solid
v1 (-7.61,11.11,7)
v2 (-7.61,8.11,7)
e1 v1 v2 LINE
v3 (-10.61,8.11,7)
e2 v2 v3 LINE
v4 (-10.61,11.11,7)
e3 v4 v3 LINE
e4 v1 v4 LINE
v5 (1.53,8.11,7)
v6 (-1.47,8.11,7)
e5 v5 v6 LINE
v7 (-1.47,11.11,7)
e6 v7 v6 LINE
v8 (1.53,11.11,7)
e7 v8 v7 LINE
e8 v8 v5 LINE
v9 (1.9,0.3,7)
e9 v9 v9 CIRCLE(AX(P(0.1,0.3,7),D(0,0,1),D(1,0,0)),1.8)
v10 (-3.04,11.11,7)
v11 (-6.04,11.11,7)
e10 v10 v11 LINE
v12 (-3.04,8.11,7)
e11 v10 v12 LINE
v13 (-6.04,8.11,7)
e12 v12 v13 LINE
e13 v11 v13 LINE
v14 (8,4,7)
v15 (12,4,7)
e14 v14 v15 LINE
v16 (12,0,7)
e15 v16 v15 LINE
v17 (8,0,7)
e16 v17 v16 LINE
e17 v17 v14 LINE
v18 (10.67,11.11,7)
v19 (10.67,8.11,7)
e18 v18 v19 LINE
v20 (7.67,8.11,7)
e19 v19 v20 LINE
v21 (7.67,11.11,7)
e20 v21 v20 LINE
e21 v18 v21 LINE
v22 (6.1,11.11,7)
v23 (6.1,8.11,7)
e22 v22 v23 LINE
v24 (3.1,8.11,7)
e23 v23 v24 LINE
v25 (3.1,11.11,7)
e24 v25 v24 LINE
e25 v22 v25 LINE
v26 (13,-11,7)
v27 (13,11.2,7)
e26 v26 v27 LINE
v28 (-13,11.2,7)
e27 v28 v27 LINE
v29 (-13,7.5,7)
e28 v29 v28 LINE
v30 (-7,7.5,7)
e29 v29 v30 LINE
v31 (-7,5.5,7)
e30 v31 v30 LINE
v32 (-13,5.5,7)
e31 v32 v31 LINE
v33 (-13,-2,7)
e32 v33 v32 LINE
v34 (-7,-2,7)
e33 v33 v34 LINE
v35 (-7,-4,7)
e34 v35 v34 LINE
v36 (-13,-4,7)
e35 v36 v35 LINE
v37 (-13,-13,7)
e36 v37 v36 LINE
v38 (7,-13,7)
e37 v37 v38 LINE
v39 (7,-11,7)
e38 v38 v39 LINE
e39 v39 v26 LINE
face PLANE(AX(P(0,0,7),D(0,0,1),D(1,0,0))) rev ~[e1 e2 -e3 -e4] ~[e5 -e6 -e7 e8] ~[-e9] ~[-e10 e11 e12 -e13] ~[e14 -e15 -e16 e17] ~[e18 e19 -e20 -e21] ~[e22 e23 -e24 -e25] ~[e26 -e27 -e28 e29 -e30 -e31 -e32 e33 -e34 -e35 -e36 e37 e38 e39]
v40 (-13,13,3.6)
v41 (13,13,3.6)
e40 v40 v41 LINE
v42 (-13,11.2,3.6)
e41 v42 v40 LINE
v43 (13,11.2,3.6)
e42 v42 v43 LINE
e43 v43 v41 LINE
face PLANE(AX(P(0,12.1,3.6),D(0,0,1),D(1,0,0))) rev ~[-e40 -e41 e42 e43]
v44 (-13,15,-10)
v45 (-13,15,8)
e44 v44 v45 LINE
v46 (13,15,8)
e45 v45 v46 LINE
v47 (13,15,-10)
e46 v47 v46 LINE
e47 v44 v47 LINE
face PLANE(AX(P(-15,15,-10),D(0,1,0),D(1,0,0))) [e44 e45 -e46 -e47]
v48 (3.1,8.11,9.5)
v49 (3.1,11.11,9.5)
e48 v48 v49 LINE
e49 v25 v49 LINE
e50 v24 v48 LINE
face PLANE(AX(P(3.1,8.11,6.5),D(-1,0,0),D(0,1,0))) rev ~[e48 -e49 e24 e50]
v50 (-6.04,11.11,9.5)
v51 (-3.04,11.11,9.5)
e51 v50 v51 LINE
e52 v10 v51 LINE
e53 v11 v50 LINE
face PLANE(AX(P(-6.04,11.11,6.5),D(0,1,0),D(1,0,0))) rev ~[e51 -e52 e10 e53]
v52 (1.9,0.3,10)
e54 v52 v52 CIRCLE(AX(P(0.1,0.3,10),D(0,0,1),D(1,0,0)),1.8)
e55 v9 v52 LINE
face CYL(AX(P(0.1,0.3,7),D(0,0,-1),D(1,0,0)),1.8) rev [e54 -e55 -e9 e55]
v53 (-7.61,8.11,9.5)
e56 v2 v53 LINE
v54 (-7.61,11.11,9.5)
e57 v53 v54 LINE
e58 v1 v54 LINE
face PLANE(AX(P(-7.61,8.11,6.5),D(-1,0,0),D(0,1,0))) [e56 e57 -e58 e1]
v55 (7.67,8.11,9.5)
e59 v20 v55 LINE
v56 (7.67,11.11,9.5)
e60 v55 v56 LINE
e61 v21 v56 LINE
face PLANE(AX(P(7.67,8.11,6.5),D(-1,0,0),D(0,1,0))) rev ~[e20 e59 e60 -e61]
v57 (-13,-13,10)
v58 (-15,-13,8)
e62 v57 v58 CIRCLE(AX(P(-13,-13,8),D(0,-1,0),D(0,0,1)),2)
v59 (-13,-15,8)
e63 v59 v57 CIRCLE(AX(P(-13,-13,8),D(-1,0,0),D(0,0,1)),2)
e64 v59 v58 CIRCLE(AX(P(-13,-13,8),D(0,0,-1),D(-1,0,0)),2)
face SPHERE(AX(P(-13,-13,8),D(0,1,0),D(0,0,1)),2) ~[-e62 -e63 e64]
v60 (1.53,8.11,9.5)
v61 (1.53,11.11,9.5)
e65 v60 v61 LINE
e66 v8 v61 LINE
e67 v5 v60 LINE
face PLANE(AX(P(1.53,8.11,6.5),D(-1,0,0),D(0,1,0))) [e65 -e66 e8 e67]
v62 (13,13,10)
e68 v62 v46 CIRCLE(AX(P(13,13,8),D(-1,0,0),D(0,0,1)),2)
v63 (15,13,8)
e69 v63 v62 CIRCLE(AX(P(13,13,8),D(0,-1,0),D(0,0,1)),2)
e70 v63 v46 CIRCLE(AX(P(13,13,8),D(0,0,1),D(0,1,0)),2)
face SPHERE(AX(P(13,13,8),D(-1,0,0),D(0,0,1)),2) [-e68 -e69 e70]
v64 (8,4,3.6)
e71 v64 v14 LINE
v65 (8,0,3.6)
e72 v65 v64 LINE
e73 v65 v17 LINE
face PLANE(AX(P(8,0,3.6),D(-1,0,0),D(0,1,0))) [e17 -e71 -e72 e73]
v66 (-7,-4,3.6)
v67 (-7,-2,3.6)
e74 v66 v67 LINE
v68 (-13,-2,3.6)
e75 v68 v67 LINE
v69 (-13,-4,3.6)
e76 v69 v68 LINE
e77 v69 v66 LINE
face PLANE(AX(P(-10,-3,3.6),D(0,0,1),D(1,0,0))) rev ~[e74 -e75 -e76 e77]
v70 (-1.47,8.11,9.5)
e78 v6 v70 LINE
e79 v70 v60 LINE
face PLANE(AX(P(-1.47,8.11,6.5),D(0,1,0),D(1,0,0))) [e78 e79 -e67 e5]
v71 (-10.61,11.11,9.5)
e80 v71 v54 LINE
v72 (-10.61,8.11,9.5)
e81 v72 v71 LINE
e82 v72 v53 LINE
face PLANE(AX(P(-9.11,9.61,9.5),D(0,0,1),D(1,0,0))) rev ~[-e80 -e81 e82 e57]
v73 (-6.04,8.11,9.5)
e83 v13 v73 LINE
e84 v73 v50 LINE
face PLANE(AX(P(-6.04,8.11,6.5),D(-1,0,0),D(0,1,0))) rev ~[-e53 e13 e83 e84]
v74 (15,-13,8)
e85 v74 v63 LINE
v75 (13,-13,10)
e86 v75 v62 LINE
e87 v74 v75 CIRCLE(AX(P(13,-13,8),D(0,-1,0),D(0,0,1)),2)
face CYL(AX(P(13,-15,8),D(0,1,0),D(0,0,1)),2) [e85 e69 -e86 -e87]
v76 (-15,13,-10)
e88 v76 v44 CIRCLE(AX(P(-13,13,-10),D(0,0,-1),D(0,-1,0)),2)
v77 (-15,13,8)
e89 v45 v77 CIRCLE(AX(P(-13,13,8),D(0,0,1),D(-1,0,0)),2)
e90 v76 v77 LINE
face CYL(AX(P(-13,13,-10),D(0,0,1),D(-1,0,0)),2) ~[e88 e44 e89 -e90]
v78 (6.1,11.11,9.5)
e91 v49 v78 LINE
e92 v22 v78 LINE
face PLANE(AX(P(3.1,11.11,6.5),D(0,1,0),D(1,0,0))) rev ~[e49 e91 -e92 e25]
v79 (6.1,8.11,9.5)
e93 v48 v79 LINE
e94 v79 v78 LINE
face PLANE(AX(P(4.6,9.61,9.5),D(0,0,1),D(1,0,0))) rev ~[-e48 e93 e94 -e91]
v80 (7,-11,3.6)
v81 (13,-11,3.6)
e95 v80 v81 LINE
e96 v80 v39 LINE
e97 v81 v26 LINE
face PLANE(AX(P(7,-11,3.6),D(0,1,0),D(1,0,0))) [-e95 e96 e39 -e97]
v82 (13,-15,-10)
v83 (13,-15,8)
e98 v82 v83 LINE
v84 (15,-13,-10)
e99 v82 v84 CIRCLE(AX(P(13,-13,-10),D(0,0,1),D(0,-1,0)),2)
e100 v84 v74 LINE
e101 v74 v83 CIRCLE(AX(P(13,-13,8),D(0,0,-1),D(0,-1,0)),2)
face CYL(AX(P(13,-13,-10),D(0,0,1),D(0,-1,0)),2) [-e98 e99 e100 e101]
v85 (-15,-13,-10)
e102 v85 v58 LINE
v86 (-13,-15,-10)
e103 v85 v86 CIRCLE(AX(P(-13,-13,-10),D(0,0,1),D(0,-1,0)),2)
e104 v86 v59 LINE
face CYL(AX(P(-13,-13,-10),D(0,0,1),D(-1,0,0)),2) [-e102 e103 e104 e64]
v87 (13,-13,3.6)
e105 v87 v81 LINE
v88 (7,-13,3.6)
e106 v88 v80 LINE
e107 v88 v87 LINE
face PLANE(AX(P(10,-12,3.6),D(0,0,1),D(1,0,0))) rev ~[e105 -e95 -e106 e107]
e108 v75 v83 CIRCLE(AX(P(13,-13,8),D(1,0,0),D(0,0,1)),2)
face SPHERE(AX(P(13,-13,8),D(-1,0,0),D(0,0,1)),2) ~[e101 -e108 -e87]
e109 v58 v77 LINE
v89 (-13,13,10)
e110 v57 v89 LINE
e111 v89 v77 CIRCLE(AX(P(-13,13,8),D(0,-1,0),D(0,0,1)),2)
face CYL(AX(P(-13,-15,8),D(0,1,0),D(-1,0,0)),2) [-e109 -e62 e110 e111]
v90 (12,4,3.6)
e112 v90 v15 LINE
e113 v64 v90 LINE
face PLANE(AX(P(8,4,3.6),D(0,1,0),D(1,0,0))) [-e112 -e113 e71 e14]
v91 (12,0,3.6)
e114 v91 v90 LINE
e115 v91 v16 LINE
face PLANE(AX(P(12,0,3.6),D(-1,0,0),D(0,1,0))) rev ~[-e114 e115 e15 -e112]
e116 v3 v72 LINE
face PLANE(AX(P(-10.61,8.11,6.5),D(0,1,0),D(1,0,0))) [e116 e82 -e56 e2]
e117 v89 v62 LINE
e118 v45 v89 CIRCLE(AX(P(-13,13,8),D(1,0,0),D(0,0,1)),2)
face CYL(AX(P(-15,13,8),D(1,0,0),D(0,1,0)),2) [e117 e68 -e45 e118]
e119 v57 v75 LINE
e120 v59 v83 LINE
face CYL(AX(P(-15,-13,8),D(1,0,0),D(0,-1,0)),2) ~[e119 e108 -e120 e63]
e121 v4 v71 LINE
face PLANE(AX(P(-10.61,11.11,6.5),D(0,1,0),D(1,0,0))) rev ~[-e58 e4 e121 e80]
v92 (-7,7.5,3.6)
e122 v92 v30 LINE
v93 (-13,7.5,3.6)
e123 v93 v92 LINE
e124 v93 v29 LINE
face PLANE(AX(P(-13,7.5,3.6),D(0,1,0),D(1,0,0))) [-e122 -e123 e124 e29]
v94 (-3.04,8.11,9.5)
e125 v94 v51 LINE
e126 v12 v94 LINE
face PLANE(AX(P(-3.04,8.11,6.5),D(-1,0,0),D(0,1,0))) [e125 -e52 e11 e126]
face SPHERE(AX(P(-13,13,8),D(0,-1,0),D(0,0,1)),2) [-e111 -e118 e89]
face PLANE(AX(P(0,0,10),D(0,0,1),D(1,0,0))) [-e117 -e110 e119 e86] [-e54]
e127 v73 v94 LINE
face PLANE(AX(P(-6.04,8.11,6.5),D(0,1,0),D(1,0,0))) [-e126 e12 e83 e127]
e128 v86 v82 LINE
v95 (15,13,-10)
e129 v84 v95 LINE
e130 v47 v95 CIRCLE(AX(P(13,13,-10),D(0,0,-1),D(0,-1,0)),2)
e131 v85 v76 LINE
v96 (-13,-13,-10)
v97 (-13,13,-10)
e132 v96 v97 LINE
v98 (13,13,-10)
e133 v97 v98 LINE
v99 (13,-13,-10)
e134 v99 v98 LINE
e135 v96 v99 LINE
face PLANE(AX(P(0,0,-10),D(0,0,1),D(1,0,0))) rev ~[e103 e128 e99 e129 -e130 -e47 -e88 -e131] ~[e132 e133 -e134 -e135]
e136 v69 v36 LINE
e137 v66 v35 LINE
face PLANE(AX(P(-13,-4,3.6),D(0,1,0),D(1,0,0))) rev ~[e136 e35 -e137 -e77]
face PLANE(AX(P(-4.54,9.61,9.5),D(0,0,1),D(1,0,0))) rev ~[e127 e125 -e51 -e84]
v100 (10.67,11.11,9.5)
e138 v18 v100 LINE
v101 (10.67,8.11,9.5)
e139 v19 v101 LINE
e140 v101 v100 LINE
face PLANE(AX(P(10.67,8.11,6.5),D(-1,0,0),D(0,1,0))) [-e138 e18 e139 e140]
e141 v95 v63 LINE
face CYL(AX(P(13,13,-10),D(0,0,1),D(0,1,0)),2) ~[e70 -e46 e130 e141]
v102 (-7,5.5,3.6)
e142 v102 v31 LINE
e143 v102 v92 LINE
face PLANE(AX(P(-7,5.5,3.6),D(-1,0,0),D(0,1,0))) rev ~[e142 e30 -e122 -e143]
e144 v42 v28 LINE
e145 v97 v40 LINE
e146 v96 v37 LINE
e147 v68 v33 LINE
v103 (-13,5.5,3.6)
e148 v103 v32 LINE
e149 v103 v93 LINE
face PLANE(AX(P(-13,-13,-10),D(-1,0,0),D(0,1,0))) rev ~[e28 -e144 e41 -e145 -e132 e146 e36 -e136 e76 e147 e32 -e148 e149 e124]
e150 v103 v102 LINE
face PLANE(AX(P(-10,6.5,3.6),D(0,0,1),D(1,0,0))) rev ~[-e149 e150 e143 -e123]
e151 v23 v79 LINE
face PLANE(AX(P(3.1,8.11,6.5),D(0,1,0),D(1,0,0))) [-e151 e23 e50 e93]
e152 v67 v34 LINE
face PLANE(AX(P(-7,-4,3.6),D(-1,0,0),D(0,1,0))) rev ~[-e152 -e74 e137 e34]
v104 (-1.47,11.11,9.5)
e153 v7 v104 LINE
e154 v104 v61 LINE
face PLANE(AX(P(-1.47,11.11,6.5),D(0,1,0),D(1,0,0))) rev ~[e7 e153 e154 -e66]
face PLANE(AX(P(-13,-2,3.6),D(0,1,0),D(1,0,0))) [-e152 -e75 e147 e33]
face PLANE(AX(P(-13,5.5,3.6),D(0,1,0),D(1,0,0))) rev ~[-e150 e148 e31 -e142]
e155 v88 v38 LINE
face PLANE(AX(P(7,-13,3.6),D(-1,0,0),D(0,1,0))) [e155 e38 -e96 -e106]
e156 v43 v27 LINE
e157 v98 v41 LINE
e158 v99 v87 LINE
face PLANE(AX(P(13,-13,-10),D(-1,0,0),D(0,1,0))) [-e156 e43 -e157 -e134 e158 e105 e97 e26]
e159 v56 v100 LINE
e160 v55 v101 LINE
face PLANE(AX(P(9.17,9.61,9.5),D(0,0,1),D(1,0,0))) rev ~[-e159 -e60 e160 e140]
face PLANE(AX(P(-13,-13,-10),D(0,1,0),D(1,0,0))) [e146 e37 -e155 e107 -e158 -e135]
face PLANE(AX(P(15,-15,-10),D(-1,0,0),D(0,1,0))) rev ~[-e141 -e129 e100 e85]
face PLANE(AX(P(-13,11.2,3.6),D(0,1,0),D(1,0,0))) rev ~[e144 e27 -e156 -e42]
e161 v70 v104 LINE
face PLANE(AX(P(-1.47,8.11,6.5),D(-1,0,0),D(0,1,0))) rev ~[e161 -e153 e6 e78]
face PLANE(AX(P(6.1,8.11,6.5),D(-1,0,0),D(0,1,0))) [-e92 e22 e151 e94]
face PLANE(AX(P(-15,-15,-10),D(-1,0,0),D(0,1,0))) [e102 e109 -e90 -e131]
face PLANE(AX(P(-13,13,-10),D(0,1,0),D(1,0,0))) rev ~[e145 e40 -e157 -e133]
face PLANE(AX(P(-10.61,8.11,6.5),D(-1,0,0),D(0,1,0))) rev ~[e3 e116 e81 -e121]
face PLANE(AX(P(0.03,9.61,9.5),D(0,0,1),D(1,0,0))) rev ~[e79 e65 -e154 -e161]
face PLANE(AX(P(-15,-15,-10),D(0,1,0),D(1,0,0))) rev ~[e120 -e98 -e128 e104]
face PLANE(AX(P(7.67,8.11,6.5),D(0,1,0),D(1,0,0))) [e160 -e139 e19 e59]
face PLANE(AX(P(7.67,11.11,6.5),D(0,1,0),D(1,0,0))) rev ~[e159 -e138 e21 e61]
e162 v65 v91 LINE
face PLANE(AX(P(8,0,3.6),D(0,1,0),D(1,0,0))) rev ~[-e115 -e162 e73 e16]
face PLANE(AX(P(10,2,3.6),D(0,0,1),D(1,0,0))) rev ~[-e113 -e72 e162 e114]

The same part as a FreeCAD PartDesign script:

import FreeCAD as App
import Part
import Sketcher

V = App.Vector
Q = App.Units.Quantity


def edges_at(feature, points):
    """Names of the edges that pass closest to the given points."""
    edges = feature.Shape.Edges
    near = lambda p: min(range(len(edges)), key=lambda i: edges[i].distToShape(Part.Vertex(*p))[0])
    return sorted({f"Edge{near(p) + 1}" for p in points})

doc = App.newDocument("Part")
body = doc.addObject("PartDesign::Body", "Body")

# Sketch on XY plane
sketch1 = doc.addObject("Sketcher::SketchObject", "Sketch")
body.addObject(sketch1)
sketch1.AttachmentSupport = (doc.XY_Plane, [""])
sketch1.MapMode = "FlatFace"
sketch1.AttachmentOffset = App.Placement(V(0, 0, 7), App.Rotation())
sketch1.addGeometry(Part.Circle(V(0.1, 0.3, 0), V(0, 0, 1), 1.8), False)
sketch1.addConstraint(Sketcher.Constraint("Diameter", 0, Q("3.6 mm")))
sketch1.addConstraint(Sketcher.Constraint("DistanceX", -1, 1, 0, 3, Q("0.1 mm")))
sketch1.addConstraint(Sketcher.Constraint("DistanceY", -1, 1, 0, 3, Q("0.3 mm")))
pad1 = doc.addObject("PartDesign::Pad", "Pad")
body.addObject(pad1)
pad1.Profile = sketch1
pad1.Length = 3
body2 = doc.addObject("PartDesign::Body", "Body001")

# Sketch on XY plane
sketch2 = doc.addObject("Sketcher::SketchObject", "Sketch001")
body2.addObject(sketch2)
sketch2.AttachmentSupport = (doc.getObject("XY_Plane001"), [""])
sketch2.MapMode = "FlatFace"
sketch2.AttachmentOffset = App.Placement(V(0, 0, 6.5), App.Rotation())
sketch2.addGeometry(Part.LineSegment(V(7.7, 11.1, 0), V(7.7, 8.1, 0)), False)
sketch2.addGeometry(Part.LineSegment(V(7.7, 8.1, 0), V(10.7, 8.1, 0)), False)
sketch2.addGeometry(Part.LineSegment(V(10.7, 8.1, 0), V(10.7, 11.1, 0)), False)
sketch2.addGeometry(Part.LineSegment(V(10.7, 11.1, 0), V(7.7, 11.1, 0)), False)
sketch2.addConstraint(Sketcher.Constraint("Coincident", 0, 2, 1, 1))
sketch2.addConstraint(Sketcher.Constraint("Coincident", 1, 2, 2, 1))
sketch2.addConstraint(Sketcher.Constraint("Coincident", 2, 2, 3, 1))
sketch2.addConstraint(Sketcher.Constraint("Coincident", 3, 2, 0, 1))
sketch2.addConstraint(Sketcher.Constraint("Vertical", 0))
sketch2.addConstraint(Sketcher.Constraint("Horizontal", 1))
sketch2.addConstraint(Sketcher.Constraint("Vertical", 2))
sketch2.addConstraint(Sketcher.Constraint("Horizontal", 3))
sketch2.addConstraint(Sketcher.Constraint("Equal", 3, 0))
sketch2.addConstraint(Sketcher.Constraint("DistanceX", 1, 1, 1, 2, Q("3 mm")))
sketch2.addConstraint(Sketcher.Constraint("DistanceX", -1, 1, 0, 2, Q("7.67 mm")))
sketch2.addConstraint(Sketcher.Constraint("DistanceY", -1, 1, 0, 2, Q("8.11 mm")))
pad2 = doc.addObject("PartDesign::Pad", "Pad001")
body2.addObject(pad2)
pad2.Profile = sketch2
pad2.Length = 3
body3 = doc.addObject("PartDesign::Body", "Body002")

# Sketch on XY plane
sketch3 = doc.addObject("Sketcher::SketchObject", "Sketch002")
body3.addObject(sketch3)
sketch3.AttachmentSupport = (doc.getObject("XY_Plane002"), [""])
sketch3.MapMode = "FlatFace"
sketch3.AttachmentOffset = App.Placement(V(0, 0, 6.5), App.Rotation())
sketch3.addGeometry(Part.LineSegment(V(3.1, 11.1, 0), V(3.1, 8.1, 0)), False)
sketch3.addGeometry(Part.LineSegment(V(3.1, 8.1, 0), V(6.1, 8.1, 0)), False)
sketch3.addGeometry(Part.LineSegment(V(6.1, 8.1, 0), V(6.1, 11.1, 0)), False)
sketch3.addGeometry(Part.LineSegment(V(6.1, 11.1, 0), V(3.1, 11.1, 0)), False)
sketch3.addConstraint(Sketcher.Constraint("Coincident", 0, 2, 1, 1))
sketch3.addConstraint(Sketcher.Constraint("Coincident", 1, 2, 2, 1))
sketch3.addConstraint(Sketcher.Constraint("Coincident", 2, 2, 3, 1))
sketch3.addConstraint(Sketcher.Constraint("Coincident", 3, 2, 0, 1))
sketch3.addConstraint(Sketcher.Constraint("Vertical", 0))
sketch3.addConstraint(Sketcher.Constraint("Horizontal", 1))
sketch3.addConstraint(Sketcher.Constraint("Vertical", 2))
sketch3.addConstraint(Sketcher.Constraint("Horizontal", 3))
sketch3.addConstraint(Sketcher.Constraint("Equal", 3, 0))
sketch3.addConstraint(Sketcher.Constraint("DistanceX", 1, 1, 1, 2, Q("3 mm")))
sketch3.addConstraint(Sketcher.Constraint("DistanceX", -1, 1, 0, 2, Q("3.1 mm")))
sketch3.addConstraint(Sketcher.Constraint("DistanceY", -1, 1, 0, 2, Q("8.11 mm")))
pad3 = doc.addObject("PartDesign::Pad", "Pad002")
body3.addObject(pad3)
pad3.Profile = sketch3
pad3.Length = 3
body4 = doc.addObject("PartDesign::Body", "Body003")

# Sketch on XY plane
sketch4 = doc.addObject("Sketcher::SketchObject", "Sketch003")
body4.addObject(sketch4)
sketch4.AttachmentSupport = (doc.getObject("XY_Plane003"), [""])
sketch4.MapMode = "FlatFace"
sketch4.AttachmentOffset = App.Placement(V(0, 0, 6.5), App.Rotation())
sketch4.addGeometry(Part.LineSegment(V(-6, 11.1, 0), V(-6, 8.1, 0)), False)
sketch4.addGeometry(Part.LineSegment(V(-6, 8.1, 0), V(-3, 8.1, 0)), False)
sketch4.addGeometry(Part.LineSegment(V(-3, 8.1, 0), V(-3, 11.1, 0)), False)
sketch4.addGeometry(Part.LineSegment(V(-3, 11.1, 0), V(-6, 11.1, 0)), False)
sketch4.addConstraint(Sketcher.Constraint("Coincident", 0, 2, 1, 1))
sketch4.addConstraint(Sketcher.Constraint("Coincident", 1, 2, 2, 1))
sketch4.addConstraint(Sketcher.Constraint("Coincident", 2, 2, 3, 1))
sketch4.addConstraint(Sketcher.Constraint("Coincident", 3, 2, 0, 1))
sketch4.addConstraint(Sketcher.Constraint("Vertical", 0))
sketch4.addConstraint(Sketcher.Constraint("Horizontal", 1))
sketch4.addConstraint(Sketcher.Constraint("Vertical", 2))
sketch4.addConstraint(Sketcher.Constraint("Horizontal", 3))
sketch4.addConstraint(Sketcher.Constraint("Equal", 3, 0))
sketch4.addConstraint(Sketcher.Constraint("DistanceX", 1, 1, 1, 2, Q("3 mm")))
sketch4.addConstraint(Sketcher.Constraint("DistanceX", 0, 2, -1, 1, Q("6.04 mm")))
sketch4.addConstraint(Sketcher.Constraint("DistanceY", -1, 1, 0, 2, Q("8.11 mm")))
pad4 = doc.addObject("PartDesign::Pad", "Pad003")
body4.addObject(pad4)
pad4.Profile = sketch4
pad4.Length = 3
body5 = doc.addObject("PartDesign::Body", "Body004")

# Sketch on XY plane
sketch5 = doc.addObject("Sketcher::SketchObject", "Sketch004")
body5.addObject(sketch5)
sketch5.AttachmentSupport = (doc.getObject("XY_Plane004"), [""])
sketch5.MapMode = "FlatFace"
sketch5.AttachmentOffset = App.Placement(V(0, 0, 6.5), App.Rotation())
sketch5.addGeometry(Part.LineSegment(V(-1.5, 11.1, 0), V(-1.5, 8.1, 0)), False)
sketch5.addGeometry(Part.LineSegment(V(-1.5, 8.1, 0), V(1.5, 8.1, 0)), False)
sketch5.addGeometry(Part.LineSegment(V(1.5, 8.1, 0), V(1.5, 11.1, 0)), False)
sketch5.addGeometry(Part.LineSegment(V(1.5, 11.1, 0), V(-1.5, 11.1, 0)), False)
sketch5.addConstraint(Sketcher.Constraint("Coincident", 0, 2, 1, 1))
sketch5.addConstraint(Sketcher.Constraint("Coincident", 1, 2, 2, 1))
sketch5.addConstraint(Sketcher.Constraint("Coincident", 2, 2, 3, 1))
sketch5.addConstraint(Sketcher.Constraint("Coincident", 3, 2, 0, 1))
sketch5.addConstraint(Sketcher.Constraint("Vertical", 0))
sketch5.addConstraint(Sketcher.Constraint("Horizontal", 1))
sketch5.addConstraint(Sketcher.Constraint("Vertical", 2))
sketch5.addConstraint(Sketcher.Constraint("Horizontal", 3))
sketch5.addConstraint(Sketcher.Constraint("Equal", 3, 0))
sketch5.addConstraint(Sketcher.Constraint("DistanceX", 1, 1, 1, 2, Q("3 mm")))
sketch5.addConstraint(Sketcher.Constraint("DistanceX", 0, 2, -1, 1, Q("1.47 mm")))
sketch5.addConstraint(Sketcher.Constraint("DistanceY", -1, 1, 0, 2, Q("8.11 mm")))
pad5 = doc.addObject("PartDesign::Pad", "Pad004")
body5.addObject(pad5)
pad5.Profile = sketch5
pad5.Length = 3
body6 = doc.addObject("PartDesign::Body", "Body005")
body6.AllowCompound = True

# Sketch on XY plane
sketch6 = doc.addObject("Sketcher::SketchObject", "Sketch005")
body6.addObject(sketch6)
sketch6.AttachmentSupport = (doc.getObject("XY_Plane005"), [""])
sketch6.MapMode = "FlatFace"
sketch6.AttachmentOffset = App.Placement(V(0, 0, 6.5), App.Rotation())
sketch6.addGeometry(Part.LineSegment(V(-10.6, 11.1, 0), V(-10.6, 8.1, 0)), False)
sketch6.addGeometry(Part.LineSegment(V(-10.6, 8.1, 0), V(-7.6, 8.1, 0)), False)
sketch6.addGeometry(Part.LineSegment(V(-7.6, 8.1, 0), V(-7.6, 11.1, 0)), False)
sketch6.addGeometry(Part.LineSegment(V(-7.6, 11.1, 0), V(-10.6, 11.1, 0)), False)
sketch6.addConstraint(Sketcher.Constraint("Coincident", 0, 2, 1, 1))
sketch6.addConstraint(Sketcher.Constraint("Coincident", 1, 2, 2, 1))
sketch6.addConstraint(Sketcher.Constraint("Coincident", 2, 2, 3, 1))
sketch6.addConstraint(Sketcher.Constraint("Coincident", 3, 2, 0, 1))
sketch6.addConstraint(Sketcher.Constraint("Vertical", 0))
sketch6.addConstraint(Sketcher.Constraint("Horizontal", 1))
sketch6.addConstraint(Sketcher.Constraint("Vertical", 2))
sketch6.addConstraint(Sketcher.Constraint("Horizontal", 3))
sketch6.addConstraint(Sketcher.Constraint("Equal", 3, 0))
sketch6.addConstraint(Sketcher.Constraint("DistanceX", 1, 1, 1, 2, Q("3 mm")))
sketch6.addConstraint(Sketcher.Constraint("DistanceX", 0, 2, -1, 1, Q("10.61 mm")))
sketch6.addConstraint(Sketcher.Constraint("DistanceY", -1, 1, 0, 2, Q("8.11 mm")))
pad6 = doc.addObject("PartDesign::Pad", "Pad005")
body6.addObject(pad6)
pad6.Profile = sketch6
pad6.Length = 3
doc.recompute()

boolean = doc.addObject("PartDesign::Boolean", "Boolean")
body6.addObject(boolean)
boolean.Type = "Fuse"
boolean.addObjects([body2])
doc.recompute()

boolean2 = doc.addObject("PartDesign::Boolean", "Boolean001")
body6.addObject(boolean2)
boolean2.Type = "Fuse"
boolean2.addObjects([body3])
doc.recompute()

boolean3 = doc.addObject("PartDesign::Boolean", "Boolean002")
body6.addObject(boolean3)
boolean3.Type = "Fuse"
boolean3.addObjects([body4])
doc.recompute()

boolean4 = doc.addObject("PartDesign::Boolean", "Boolean003")
body6.addObject(boolean4)
boolean4.Type = "Fuse"
boolean4.addObjects([body5])
body7 = doc.addObject("PartDesign::Body", "Body006")

# Sketch on XY plane
sketch7 = doc.addObject("Sketcher::SketchObject", "Sketch006")
body7.addObject(sketch7)
sketch7.AttachmentSupport = (doc.getObject("XY_Plane006"), [""])
sketch7.MapMode = "FlatFace"
sketch7.AttachmentOffset = App.Placement(V(0, 0, -10), App.Rotation())
sketch7.addGeometry(Part.LineSegment(V(-13, 13, 0), V(-13, -13, 0)), False)
sketch7.addGeometry(Part.LineSegment(V(-13, -13, 0), V(13, -13, 0)), False)
sketch7.addGeometry(Part.LineSegment(V(13, -13, 0), V(13, 13, 0)), False)
sketch7.addGeometry(Part.LineSegment(V(13, 13, 0), V(-13, 13, 0)), False)
sketch7.addConstraint(Sketcher.Constraint("Coincident", 0, 2, 1, 1))
sketch7.addConstraint(Sketcher.Constraint("Coincident", 1, 2, 2, 1))
sketch7.addConstraint(Sketcher.Constraint("Coincident", 2, 2, 3, 1))
sketch7.addConstraint(Sketcher.Constraint("Coincident", 3, 2, 0, 1))
sketch7.addConstraint(Sketcher.Constraint("Vertical", 0))
sketch7.addConstraint(Sketcher.Constraint("Horizontal", 1))
sketch7.addConstraint(Sketcher.Constraint("Vertical", 2))
sketch7.addConstraint(Sketcher.Constraint("Horizontal", 3))
sketch7.addConstraint(Sketcher.Constraint("Symmetric", 0, 2, 2, 2, -1, 1))
sketch7.addConstraint(Sketcher.Constraint("Equal", 3, 0))
sketch7.addConstraint(Sketcher.Constraint("DistanceX", 1, 1, 1, 2, Q("26 mm")))
pad7 = doc.addObject("PartDesign::Pad", "Pad006")
body7.addObject(pad7)
pad7.Profile = sketch7
pad7.Length = 17
body8 = doc.addObject("PartDesign::Body", "Body007")

# Sketch on XY plane
sketch8 = doc.addObject("Sketcher::SketchObject", "Sketch007")
body8.addObject(sketch8)
sketch8.AttachmentSupport = (doc.getObject("XY_Plane007"), [""])
sketch8.MapMode = "FlatFace"
sketch8.AttachmentOffset = App.Placement(V(0, 0, -10), App.Rotation())
sketch8.addGeometry(Part.LineSegment(V(-15, 15, 0), V(-15, -15, 0)), False)
sketch8.addGeometry(Part.LineSegment(V(-15, -15, 0), V(15, -15, 0)), False)
sketch8.addGeometry(Part.LineSegment(V(15, -15, 0), V(15, 15, 0)), False)
sketch8.addGeometry(Part.LineSegment(V(15, 15, 0), V(-15, 15, 0)), False)
sketch8.addConstraint(Sketcher.Constraint("Coincident", 0, 2, 1, 1))
sketch8.addConstraint(Sketcher.Constraint("Coincident", 1, 2, 2, 1))
sketch8.addConstraint(Sketcher.Constraint("Coincident", 2, 2, 3, 1))
sketch8.addConstraint(Sketcher.Constraint("Coincident", 3, 2, 0, 1))
sketch8.addConstraint(Sketcher.Constraint("Vertical", 0))
sketch8.addConstraint(Sketcher.Constraint("Horizontal", 1))
sketch8.addConstraint(Sketcher.Constraint("Vertical", 2))
sketch8.addConstraint(Sketcher.Constraint("Horizontal", 3))
sketch8.addConstraint(Sketcher.Constraint("Symmetric", 0, 2, 2, 2, -1, 1))
sketch8.addConstraint(Sketcher.Constraint("Equal", 3, 0))
sketch8.addConstraint(Sketcher.Constraint("DistanceX", 1, 1, 1, 2, Q("30 mm")))
pad8 = doc.addObject("PartDesign::Pad", "Pad007")
body8.addObject(pad8)
pad8.Profile = sketch8
pad8.Length = 20
doc.recompute()

boolean5 = doc.addObject("PartDesign::Boolean", "Boolean004")
body8.addObject(boolean5)
boolean5.Type = "Cut"
boolean5.addObjects([body7])
doc.recompute()

boolean6 = doc.addObject("PartDesign::Boolean", "Boolean005")
body8.addObject(boolean6)
boolean6.Type = "Cut"
boolean6.addObjects([body6])
doc.recompute()

boolean7 = doc.addObject("PartDesign::Boolean", "Boolean006")
body8.addObject(boolean7)
boolean7.Type = "Cut"
boolean7.addObjects([body])
body9 = doc.addObject("PartDesign::Body", "Body008")

# Sketch on XY plane
sketch9 = doc.addObject("Sketcher::SketchObject", "Sketch008")
body9.addObject(sketch9)
sketch9.AttachmentSupport = (doc.getObject("XY_Plane008"), [""])
sketch9.MapMode = "FlatFace"
sketch9.AttachmentOffset = App.Placement(V(0, 0, 3.6), App.Rotation())
sketch9.addGeometry(Part.LineSegment(V(-13, 7.5, 0), V(-13, 5.5, 0)), False)
sketch9.addGeometry(Part.LineSegment(V(-13, 5.5, 0), V(-7, 5.5, 0)), False)
sketch9.addGeometry(Part.LineSegment(V(-7, 5.5, 0), V(-7, 7.5, 0)), False)
sketch9.addGeometry(Part.LineSegment(V(-7, 7.5, 0), V(-13, 7.5, 0)), False)
sketch9.addConstraint(Sketcher.Constraint("Coincident", 0, 2, 1, 1))
sketch9.addConstraint(Sketcher.Constraint("Coincident", 1, 2, 2, 1))
sketch9.addConstraint(Sketcher.Constraint("Coincident", 2, 2, 3, 1))
sketch9.addConstraint(Sketcher.Constraint("Coincident", 3, 2, 0, 1))
sketch9.addConstraint(Sketcher.Constraint("Vertical", 0))
sketch9.addConstraint(Sketcher.Constraint("Horizontal", 1))
sketch9.addConstraint(Sketcher.Constraint("Vertical", 2))
sketch9.addConstraint(Sketcher.Constraint("Horizontal", 3))
sketch9.addConstraint(Sketcher.Constraint("DistanceX", 1, 1, 1, 2, Q("6 mm")))
sketch9.addConstraint(Sketcher.Constraint("DistanceY", 0, 2, 0, 1, Q("2 mm")))
sketch9.addConstraint(Sketcher.Constraint("DistanceX", 0, 2, -1, 1, Q("13 mm")))
sketch9.addConstraint(Sketcher.Constraint("DistanceY", -1, 1, 0, 2, Q("5.5 mm")))
pad9 = doc.addObject("PartDesign::Pad", "Pad008")
body9.addObject(pad9)
pad9.Profile = sketch9
pad9.Length = 3.4
body10 = doc.addObject("PartDesign::Body", "Body009")

# Sketch on XY plane
sketch10 = doc.addObject("Sketcher::SketchObject", "Sketch009")
body10.addObject(sketch10)
sketch10.AttachmentSupport = (doc.getObject("XY_Plane009"), [""])
sketch10.MapMode = "FlatFace"
sketch10.AttachmentOffset = App.Placement(V(0, 0, 3.6), App.Rotation())
sketch10.addGeometry(Part.LineSegment(V(8, 4, 0), V(8, 0, 0)), False)
sketch10.addGeometry(Part.LineSegment(V(8, 0, 0), V(12, 0, 0)), False)
sketch10.addGeometry(Part.LineSegment(V(12, 0, 0), V(12, 4, 0)), False)
sketch10.addGeometry(Part.LineSegment(V(12, 4, 0), V(8, 4, 0)), False)
sketch10.addConstraint(Sketcher.Constraint("Coincident", 0, 2, 1, 1))
sketch10.addConstraint(Sketcher.Constraint("Coincident", 1, 2, 2, 1))
sketch10.addConstraint(Sketcher.Constraint("Coincident", 2, 2, 3, 1))
sketch10.addConstraint(Sketcher.Constraint("Coincident", 3, 2, 0, 1))
sketch10.addConstraint(Sketcher.Constraint("Vertical", 0))
sketch10.addConstraint(Sketcher.Constraint("Horizontal", 1))
sketch10.addConstraint(Sketcher.Constraint("Vertical", 2))
sketch10.addConstraint(Sketcher.Constraint("Horizontal", 3))
sketch10.addConstraint(Sketcher.Constraint("PointOnObject", 0, 2, -1))
sketch10.addConstraint(Sketcher.Constraint("Equal", 3, 0))
sketch10.addConstraint(Sketcher.Constraint("DistanceX", 1, 1, 1, 2, Q("4 mm")))
sketch10.addConstraint(Sketcher.Constraint("DistanceX", -1, 1, 0, 2, Q("8 mm")))
pad10 = doc.addObject("PartDesign::Pad", "Pad009")
body10.addObject(pad10)
pad10.Profile = sketch10
pad10.Length = 3.4
body11 = doc.addObject("PartDesign::Body", "Body010")

# Sketch on XY plane
sketch11 = doc.addObject("Sketcher::SketchObject", "Sketch010")
body11.addObject(sketch11)
sketch11.AttachmentSupport = (doc.getObject("XY_Plane010"), [""])
sketch11.MapMode = "FlatFace"
sketch11.AttachmentOffset = App.Placement(V(0, 0, 3.6), App.Rotation())
sketch11.addGeometry(Part.LineSegment(V(-13, 13, 0), V(-13, 11.2, 0)), False)
sketch11.addGeometry(Part.LineSegment(V(-13, 11.2, 0), V(13, 11.2, 0)), False)
sketch11.addGeometry(Part.LineSegment(V(13, 11.2, 0), V(13, 13, 0)), False)
sketch11.addGeometry(Part.LineSegment(V(13, 13, 0), V(-13, 13, 0)), False)
sketch11.addConstraint(Sketcher.Constraint("Coincident", 0, 2, 1, 1))
sketch11.addConstraint(Sketcher.Constraint("Coincident", 1, 2, 2, 1))
sketch11.addConstraint(Sketcher.Constraint("Coincident", 2, 2, 3, 1))
sketch11.addConstraint(Sketcher.Constraint("Coincident", 3, 2, 0, 1))
sketch11.addConstraint(Sketcher.Constraint("Vertical", 0))
sketch11.addConstraint(Sketcher.Constraint("Horizontal", 1))
sketch11.addConstraint(Sketcher.Constraint("Vertical", 2))
sketch11.addConstraint(Sketcher.Constraint("Horizontal", 3))
sketch11.addConstraint(Sketcher.Constraint("DistanceX", 1, 1, 1, 2, Q("26 mm")))
sketch11.addConstraint(Sketcher.Constraint("DistanceY", 0, 2, 0, 1, Q("1.8 mm")))
sketch11.addConstraint(Sketcher.Constraint("DistanceX", 0, 2, -1, 1, Q("13 mm")))
sketch11.addConstraint(Sketcher.Constraint("DistanceY", -1, 1, 2, 2, Q("13 mm")))
pad11 = doc.addObject("PartDesign::Pad", "Pad010")
body11.addObject(pad11)
pad11.Profile = sketch11
pad11.Length = 3.4
body12 = doc.addObject("PartDesign::Body", "Body011")

# Sketch on XY plane
sketch12 = doc.addObject("Sketcher::SketchObject", "Sketch011")
body12.addObject(sketch12)
sketch12.AttachmentSupport = (doc.getObject("XY_Plane011"), [""])
sketch12.MapMode = "FlatFace"
sketch12.AttachmentOffset = App.Placement(V(0, 0, 3.6), App.Rotation())
sketch12.addGeometry(Part.LineSegment(V(-13, -2, 0), V(-13, -4, 0)), False)
sketch12.addGeometry(Part.LineSegment(V(-13, -4, 0), V(-7, -4, 0)), False)
sketch12.addGeometry(Part.LineSegment(V(-7, -4, 0), V(-7, -2, 0)), False)
sketch12.addGeometry(Part.LineSegment(V(-7, -2, 0), V(-13, -2, 0)), False)
sketch12.addConstraint(Sketcher.Constraint("Coincident", 0, 2, 1, 1))
sketch12.addConstraint(Sketcher.Constraint("Coincident", 1, 2, 2, 1))
sketch12.addConstraint(Sketcher.Constraint("Coincident", 2, 2, 3, 1))
sketch12.addConstraint(Sketcher.Constraint("Coincident", 3, 2, 0, 1))
sketch12.addConstraint(Sketcher.Constraint("Vertical", 0))
sketch12.addConstraint(Sketcher.Constraint("Horizontal", 1))
sketch12.addConstraint(Sketcher.Constraint("Vertical", 2))
sketch12.addConstraint(Sketcher.Constraint("Horizontal", 3))
sketch12.addConstraint(Sketcher.Constraint("DistanceX", 1, 1, 1, 2, Q("6 mm")))
sketch12.addConstraint(Sketcher.Constraint("DistanceY", 0, 2, 0, 1, Q("2 mm")))
sketch12.addConstraint(Sketcher.Constraint("DistanceX", 0, 2, -1, 1, Q("13 mm")))
sketch12.addConstraint(Sketcher.Constraint("DistanceY", 0, 2, -1, 1, Q("4 mm")))
pad12 = doc.addObject("PartDesign::Pad", "Pad011")
body12.addObject(pad12)
pad12.Profile = sketch12
pad12.Length = 3.4
body13 = doc.addObject("PartDesign::Body", "Body012")
body13.AllowCompound = True

# Sketch on XY plane
sketch13 = doc.addObject("Sketcher::SketchObject", "Sketch012")
body13.addObject(sketch13)
sketch13.AttachmentSupport = (doc.getObject("XY_Plane012"), [""])
sketch13.MapMode = "FlatFace"
sketch13.AttachmentOffset = App.Placement(V(0, 0, 3.6), App.Rotation())
sketch13.addGeometry(Part.LineSegment(V(7, -11, 0), V(7, -13, 0)), False)
sketch13.addGeometry(Part.LineSegment(V(7, -13, 0), V(13, -13, 0)), False)
sketch13.addGeometry(Part.LineSegment(V(13, -13, 0), V(13, -11, 0)), False)
sketch13.addGeometry(Part.LineSegment(V(13, -11, 0), V(7, -11, 0)), False)
sketch13.addConstraint(Sketcher.Constraint("Coincident", 0, 2, 1, 1))
sketch13.addConstraint(Sketcher.Constraint("Coincident", 1, 2, 2, 1))
sketch13.addConstraint(Sketcher.Constraint("Coincident", 2, 2, 3, 1))
sketch13.addConstraint(Sketcher.Constraint("Coincident", 3, 2, 0, 1))
sketch13.addConstraint(Sketcher.Constraint("Vertical", 0))
sketch13.addConstraint(Sketcher.Constraint("Horizontal", 1))
sketch13.addConstraint(Sketcher.Constraint("Vertical", 2))
sketch13.addConstraint(Sketcher.Constraint("Horizontal", 3))
sketch13.addConstraint(Sketcher.Constraint("DistanceX", 1, 1, 1, 2, Q("6 mm")))
sketch13.addConstraint(Sketcher.Constraint("DistanceY", 0, 2, 0, 1, Q("2 mm")))
sketch13.addConstraint(Sketcher.Constraint("DistanceX", -1, 1, 0, 2, Q("7 mm")))
sketch13.addConstraint(Sketcher.Constraint("DistanceY", 0, 2, -1, 1, Q("13 mm")))
pad13 = doc.addObject("PartDesign::Pad", "Pad012")
body13.addObject(pad13)
pad13.Profile = sketch13
pad13.Length = 3.4
doc.recompute()

boolean8 = doc.addObject("PartDesign::Boolean", "Boolean007")
body13.addObject(boolean8)
boolean8.Type = "Fuse"
boolean8.addObjects([body9])
doc.recompute()

boolean9 = doc.addObject("PartDesign::Boolean", "Boolean008")
body13.addObject(boolean9)
boolean9.Type = "Fuse"
boolean9.addObjects([body10])
doc.recompute()

boolean10 = doc.addObject("PartDesign::Boolean", "Boolean009")
body13.addObject(boolean10)
boolean10.Type = "Fuse"
boolean10.addObjects([body11])
doc.recompute()

boolean11 = doc.addObject("PartDesign::Boolean", "Boolean010")
body13.addObject(boolean11)
boolean11.Type = "Fuse"
boolean11.addObjects([body12])
doc.recompute()

boolean12 = doc.addObject("PartDesign::Boolean", "Boolean011")
body13.addObject(boolean12)
boolean12.Type = "Fuse"
boolean12.addObjects([body8])
doc.recompute()

fillet = doc.addObject("PartDesign::Fillet", "Fillet")
body13.addObject(fillet)
fillet.Base = (boolean12, edges_at(boolean12, [
    (-15, 0, 10),
    (0, 15, 10),
    (0, -15, 10),
    (15, 0, 10),
    (-15, -15, 0),
    (-15, 15, 0),
    (15, 15, 0),
    (15, -15, 0),
]))
fillet.Radius = 2

doc.recompute()
